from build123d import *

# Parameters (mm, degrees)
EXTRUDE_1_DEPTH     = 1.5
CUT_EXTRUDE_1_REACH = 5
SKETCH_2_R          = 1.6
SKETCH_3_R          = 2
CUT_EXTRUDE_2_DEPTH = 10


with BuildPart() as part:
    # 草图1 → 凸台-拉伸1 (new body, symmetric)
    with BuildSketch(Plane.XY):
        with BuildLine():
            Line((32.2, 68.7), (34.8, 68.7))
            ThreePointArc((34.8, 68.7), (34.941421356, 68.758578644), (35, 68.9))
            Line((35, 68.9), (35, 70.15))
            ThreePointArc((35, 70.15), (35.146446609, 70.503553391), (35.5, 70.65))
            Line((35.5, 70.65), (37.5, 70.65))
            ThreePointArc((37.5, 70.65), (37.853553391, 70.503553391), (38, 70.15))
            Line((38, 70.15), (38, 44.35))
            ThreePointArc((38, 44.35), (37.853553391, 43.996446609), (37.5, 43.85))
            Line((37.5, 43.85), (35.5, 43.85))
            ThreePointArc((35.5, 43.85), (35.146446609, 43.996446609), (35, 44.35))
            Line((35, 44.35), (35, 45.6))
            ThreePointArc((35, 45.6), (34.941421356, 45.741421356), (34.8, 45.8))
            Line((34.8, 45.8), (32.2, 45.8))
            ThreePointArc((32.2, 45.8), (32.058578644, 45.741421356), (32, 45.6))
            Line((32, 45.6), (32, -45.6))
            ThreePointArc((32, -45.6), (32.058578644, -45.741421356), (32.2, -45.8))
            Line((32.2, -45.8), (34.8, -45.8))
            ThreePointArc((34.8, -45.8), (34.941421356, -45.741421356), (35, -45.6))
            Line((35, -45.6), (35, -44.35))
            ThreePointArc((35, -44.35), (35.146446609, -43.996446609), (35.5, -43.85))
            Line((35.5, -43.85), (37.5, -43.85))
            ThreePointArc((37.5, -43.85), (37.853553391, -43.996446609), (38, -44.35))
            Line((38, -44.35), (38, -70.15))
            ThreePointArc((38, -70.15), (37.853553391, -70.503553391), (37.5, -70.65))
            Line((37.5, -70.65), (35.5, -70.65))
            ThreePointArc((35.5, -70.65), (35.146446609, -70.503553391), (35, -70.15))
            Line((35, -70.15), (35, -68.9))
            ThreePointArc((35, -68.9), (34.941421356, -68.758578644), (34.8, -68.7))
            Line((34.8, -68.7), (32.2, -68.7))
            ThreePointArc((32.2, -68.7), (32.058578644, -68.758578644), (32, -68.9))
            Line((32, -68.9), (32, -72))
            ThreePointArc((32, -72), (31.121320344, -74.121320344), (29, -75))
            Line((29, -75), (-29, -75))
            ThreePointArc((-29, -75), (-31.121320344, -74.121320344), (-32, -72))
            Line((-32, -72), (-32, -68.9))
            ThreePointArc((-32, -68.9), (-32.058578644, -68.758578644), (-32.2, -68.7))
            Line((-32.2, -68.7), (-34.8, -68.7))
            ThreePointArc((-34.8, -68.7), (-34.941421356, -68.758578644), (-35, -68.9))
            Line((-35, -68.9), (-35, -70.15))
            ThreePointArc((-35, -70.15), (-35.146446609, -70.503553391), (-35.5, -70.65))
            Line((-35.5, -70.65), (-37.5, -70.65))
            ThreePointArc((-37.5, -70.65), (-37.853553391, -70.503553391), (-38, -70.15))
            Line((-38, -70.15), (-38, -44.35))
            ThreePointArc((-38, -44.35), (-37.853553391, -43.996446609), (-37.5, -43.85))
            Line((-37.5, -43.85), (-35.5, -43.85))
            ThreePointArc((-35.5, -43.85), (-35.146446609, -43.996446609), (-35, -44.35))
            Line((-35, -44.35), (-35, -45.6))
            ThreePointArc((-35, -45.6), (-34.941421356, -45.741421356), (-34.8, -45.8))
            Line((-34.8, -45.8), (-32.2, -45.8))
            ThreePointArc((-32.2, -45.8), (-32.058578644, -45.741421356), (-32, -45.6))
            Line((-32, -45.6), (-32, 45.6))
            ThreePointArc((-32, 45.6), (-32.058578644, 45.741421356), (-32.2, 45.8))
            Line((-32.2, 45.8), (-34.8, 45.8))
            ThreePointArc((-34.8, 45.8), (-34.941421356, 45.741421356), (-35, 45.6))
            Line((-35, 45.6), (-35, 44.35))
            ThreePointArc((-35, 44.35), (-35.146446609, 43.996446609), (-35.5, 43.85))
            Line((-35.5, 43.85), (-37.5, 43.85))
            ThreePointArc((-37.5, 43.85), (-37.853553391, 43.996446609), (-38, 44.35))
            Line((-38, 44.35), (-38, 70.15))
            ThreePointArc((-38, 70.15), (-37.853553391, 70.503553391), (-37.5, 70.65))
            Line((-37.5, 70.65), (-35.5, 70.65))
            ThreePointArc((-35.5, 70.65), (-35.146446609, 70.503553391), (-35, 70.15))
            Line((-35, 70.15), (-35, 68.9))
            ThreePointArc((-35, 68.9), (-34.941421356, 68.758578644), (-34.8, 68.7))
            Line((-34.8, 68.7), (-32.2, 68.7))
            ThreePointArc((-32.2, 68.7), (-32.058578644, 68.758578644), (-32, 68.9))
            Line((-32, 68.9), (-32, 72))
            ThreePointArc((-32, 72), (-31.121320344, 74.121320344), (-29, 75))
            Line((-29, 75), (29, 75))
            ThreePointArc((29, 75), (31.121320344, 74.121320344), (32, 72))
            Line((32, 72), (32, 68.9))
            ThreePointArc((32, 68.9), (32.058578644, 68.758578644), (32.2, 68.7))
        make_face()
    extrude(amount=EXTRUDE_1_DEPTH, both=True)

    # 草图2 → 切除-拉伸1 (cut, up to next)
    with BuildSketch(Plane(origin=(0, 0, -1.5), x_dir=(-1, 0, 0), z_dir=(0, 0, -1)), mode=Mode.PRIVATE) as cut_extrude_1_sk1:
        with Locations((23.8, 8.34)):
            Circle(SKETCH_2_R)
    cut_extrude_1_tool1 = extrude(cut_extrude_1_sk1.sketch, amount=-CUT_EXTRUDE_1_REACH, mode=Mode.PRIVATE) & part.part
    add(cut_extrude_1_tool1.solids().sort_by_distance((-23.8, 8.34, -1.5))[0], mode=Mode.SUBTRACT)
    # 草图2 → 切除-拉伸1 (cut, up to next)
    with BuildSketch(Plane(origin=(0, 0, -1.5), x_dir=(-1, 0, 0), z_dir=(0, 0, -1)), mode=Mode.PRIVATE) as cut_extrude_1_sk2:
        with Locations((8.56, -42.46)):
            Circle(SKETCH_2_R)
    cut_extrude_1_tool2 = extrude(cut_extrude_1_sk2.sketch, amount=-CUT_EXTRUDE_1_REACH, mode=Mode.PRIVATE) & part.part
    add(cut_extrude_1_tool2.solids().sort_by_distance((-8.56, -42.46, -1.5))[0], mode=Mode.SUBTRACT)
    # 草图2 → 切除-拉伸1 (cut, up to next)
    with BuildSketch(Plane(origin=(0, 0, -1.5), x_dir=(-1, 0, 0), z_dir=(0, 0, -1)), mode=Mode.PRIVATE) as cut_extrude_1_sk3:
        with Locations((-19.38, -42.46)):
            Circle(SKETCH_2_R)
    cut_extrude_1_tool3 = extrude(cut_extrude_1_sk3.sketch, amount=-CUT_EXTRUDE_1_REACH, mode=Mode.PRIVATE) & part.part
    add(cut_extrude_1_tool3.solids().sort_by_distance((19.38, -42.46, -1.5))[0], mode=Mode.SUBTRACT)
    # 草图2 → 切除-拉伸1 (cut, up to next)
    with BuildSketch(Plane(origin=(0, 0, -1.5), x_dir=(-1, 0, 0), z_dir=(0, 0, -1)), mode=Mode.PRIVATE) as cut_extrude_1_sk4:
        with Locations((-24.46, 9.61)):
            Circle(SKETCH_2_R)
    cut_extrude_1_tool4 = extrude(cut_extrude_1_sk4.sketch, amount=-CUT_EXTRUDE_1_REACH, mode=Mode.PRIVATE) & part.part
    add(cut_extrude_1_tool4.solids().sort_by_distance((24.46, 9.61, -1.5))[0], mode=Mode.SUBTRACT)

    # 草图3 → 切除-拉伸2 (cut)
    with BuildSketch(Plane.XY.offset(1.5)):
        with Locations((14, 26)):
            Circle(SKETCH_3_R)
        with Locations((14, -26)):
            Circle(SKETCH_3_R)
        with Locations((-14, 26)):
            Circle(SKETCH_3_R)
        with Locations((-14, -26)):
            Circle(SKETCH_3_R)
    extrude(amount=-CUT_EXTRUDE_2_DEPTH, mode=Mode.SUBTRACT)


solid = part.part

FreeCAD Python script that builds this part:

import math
import FreeCAD as App
import Part
import Sketcher

doc = App.newDocument("Part")
params = doc.addObject("Spreadsheet::Sheet", "Params")
for row, (alias, value) in enumerate([
    ("sketch1_radius", "3 mm"),
    ("sketch1_radius2", "0.2 mm"),
    ("sketch1_radius3", "0.5 mm"),
    ("sketch1_width", "58 mm"),
    ("sketch1_width2", "2 mm"),
    ("pad1_length", "3 mm"),
    ("sketch2_diameter", "3.2 mm"),
    ("sketch3_diameter", "3.2 mm"),
    ("sketch4_diameter", "3.2 mm"),
    ("sketch5_diameter", "3.2 mm"),
    ("sketch6_diameter", "4 mm"),
    ("pocket5_length", "10 mm"),
], start=1):
    params.set(f"A{row}", alias)
    params.set(f"B{row}", "=" + value)
    params.setAlias(f"B{row}", alias)

body = doc.addObject("PartDesign::Body", "Body")

# Sketch on XY plane
sketch1 = body.newObject("Sketcher::SketchObject", "Sketch")
sketch1.AttachmentSupport = (doc.getObject("XY_Plane"), [""])
sketch1.MapMode = "FlatFace"
sketch1.addGeometry([
    Part.LineSegment(App.Vector(34.8, 68.7, 0), App.Vector(32.2, 68.7, 0)),  # 0
    Part.ArcOfCircle(Part.Circle(App.Vector(32.2, 68.9, 0), App.Vector(0, 0, 1), 0.2), math.radians(-180), math.radians(-90)),  # 1
    Part.LineSegment(App.Vector(32, 68.9, 0), App.Vector(32, 72, 0)),  # 2
    Part.ArcOfCircle(Part.Circle(App.Vector(29, 72, 0), App.Vector(0, 0, 1), 3), math.radians(0), math.radians(90)),  # 3
    Part.LineSegment(App.Vector(29, 75, 0), App.Vector(-29, 75, 0)),  # 4
    Part.ArcOfCircle(Part.Circle(App.Vector(-29, 72, 0), App.Vector(0, 0, 1), 3), math.radians(90), math.radians(180)),  # 5
    Part.LineSegment(App.Vector(-32, 72, 0), App.Vector(-32, 68.9, 0)),  # 6
    Part.ArcOfCircle(Part.Circle(App.Vector(-32.2, 68.9, 0), App.Vector(0, 0, 1), 0.2), math.radians(-90), math.radians(0)),  # 7
    Part.LineSegment(App.Vector(-32.2, 68.7, 0), App.Vector(-34.8, 68.7, 0)),  # 8
    Part.ArcOfCircle(Part.Circle(App.Vector(-34.8, 68.9, 0), App.Vector(0, 0, 1), 0.2), math.radians(-180), math.radians(-90)),  # 9
    Part.LineSegment(App.Vector(-35, 68.9, 0), App.Vector(-35, 70.15, 0)),  # 10
    Part.ArcOfCircle(Part.Circle(App.Vector(-35.5, 70.15, 0), App.Vector(0, 0, 1), 0.5), math.radians(0), math.radians(90)),  # 11
    Part.LineSegment(App.Vector(-35.5, 70.65, 0), App.Vector(-37.5, 70.65, 0)),  # 12
    Part.ArcOfCircle(Part.Circle(App.Vector(-37.5, 70.15, 0), App.Vector(0, 0, 1), 0.5), math.radians(90), math.radians(180)),  # 13
    Part.LineSegment(App.Vector(-38, 70.15, 0), App.Vector(-38, 44.35, 0)),  # 14
    Part.ArcOfCircle(Part.Circle(App.Vector(-37.5, 44.35, 0), App.Vector(0, 0, 1), 0.5), math.radians(180), math.radians(270)),  # 15
    Part.LineSegment(App.Vector(-37.5, 43.85, 0), App.Vector(-35.5, 43.85, 0)),  # 16
    Part.ArcOfCircle(Part.Circle(App.Vector(-35.5, 44.35, 0), App.Vector(0, 0, 1), 0.5), math.radians(-90), math.radians(0)),  # 17
    Part.LineSegment(App.Vector(-35, 44.35, 0), App.Vector(-35, 45.6, 0)),  # 18
    Part.ArcOfCircle(Part.Circle(App.Vector(-34.8, 45.6, 0), App.Vector(0, 0, 1), 0.2), math.radians(90), math.radians(180)),  # 19
    Part.LineSegment(App.Vector(-34.8, 45.8, 0), App.Vector(-32.2, 45.8, 0)),  # 20
    Part.ArcOfCircle(Part.Circle(App.Vector(-32.2, 45.6, 0), App.Vector(0, 0, 1), 0.2), math.radians(0), math.radians(90)),  # 21
    Part.LineSegment(App.Vector(-32, 45.6, 0), App.Vector(-32, -45.6, 0)),  # 22
    Part.ArcOfCircle(Part.Circle(App.Vector(-32.2, -45.6, 0), App.Vector(0, 0, 1), 0.2), math.radians(-90), math.radians(0)),  # 23
    Part.LineSegment(App.Vector(-32.2, -45.8, 0), App.Vector(-34.8, -45.8, 0)),  # 24
    Part.ArcOfCircle(Part.Circle(App.Vector(-34.8, -45.6, 0), App.Vector(0, 0, 1), 0.2), math.radians(-180), math.radians(-90)),  # 25
    Part.LineSegment(App.Vector(-35, -45.6, 0), App.Vector(-35, -44.35, 0)),  # 26
    Part.ArcOfCircle(Part.Circle(App.Vector(-35.5, -44.35, 0), App.Vector(0, 0, 1), 0.5), math.radians(0), math.radians(90)),  # 27
    Part.LineSegment(App.Vector(-35.5, -43.85, 0), App.Vector(-37.5, -43.85, 0)),  # 28
    Part.ArcOfCircle(Part.Circle(App.Vector(-37.5, -44.35, 0), App.Vector(0, 0, 1), 0.5), math.radians(90), math.radians(180)),  # 29
    Part.LineSegment(App.Vector(-38, -44.35, 0), App.Vector(-38, -70.15, 0)),  # 30
    Part.ArcOfCircle(Part.Circle(App.Vector(-37.5, -70.15, 0), App.Vector(0, 0, 1), 0.5), math.radians(180), math.radians(270)),  # 31
    Part.LineSegment(App.Vector(-37.5, -70.65, 0), App.Vector(-35.5, -70.65, 0)),  # 32
    Part.ArcOfCircle(Part.Circle(App.Vector(-35.5, -70.15, 0), App.Vector(0, 0, 1), 0.5), math.radians(-90), math.radians(0)),  # 33
    Part.LineSegment(App.Vector(-35, -70.15, 0), App.Vector(-35, -68.9, 0)),  # 34
    Part.ArcOfCircle(Part.Circle(App.Vector(-34.8, -68.9, 0), App.Vector(0, 0, 1), 0.2), math.radians(90), math.radians(180)),  # 35
    Part.LineSegment(App.Vector(-34.8, -68.7, 0), App.Vector(-32.2, -68.7, 0)),  # 36
    Part.ArcOfCircle(Part.Circle(App.Vector(-32.2, -68.9, 0), App.Vector(0, 0, 1), 0.2), math.radians(0), math.radians(90)),  # 37
    Part.LineSegment(App.Vector(-32, -68.9, 0), App.Vector(-32, -72, 0)),  # 38
    Part.ArcOfCircle(Part.Circle(App.Vector(-29, -72, 0), App.Vector(0, 0, 1), 3), math.radians(180), math.radians(270)),  # 39
    Part.LineSegment(App.Vector(-29, -75, 0), App.Vector(29, -75, 0)),  # 40
    Part.ArcOfCircle(Part.Circle(App.Vector(29, -72, 0), App.Vector(0, 0, 1), 3), math.radians(-90), math.radians(0)),  # 41
    Part.LineSegment(App.Vector(32, -72, 0), App.Vector(32, -68.9, 0)),  # 42
    Part.ArcOfCircle(Part.Circle(App.Vector(32.2, -68.9, 0), App.Vector(0, 0, 1), 0.2), math.radians(90), math.radians(180)),  # 43
    Part.LineSegment(App.Vector(32.2, -68.7, 0), App.Vector(34.8, -68.7, 0)),  # 44
    Part.ArcOfCircle(Part.Circle(App.Vector(34.8, -68.9, 0), App.Vector(0, 0, 1), 0.2), math.radians(0), math.radians(90)),  # 45
    Part.LineSegment(App.Vector(35, -68.9, 0), App.Vector(35, -70.15, 0)),  # 46
    Part.ArcOfCircle(Part.Circle(App.Vector(35.5, -70.15, 0), App.Vector(0, 0, 1), 0.5), math.radians(180), math.radians(270)),  # 47
    Part.LineSegment(App.Vector(35.5, -70.65, 0), App.Vector(37.5, -70.65, 0)),  # 48
    Part.ArcOfCircle(Part.Circle(App.Vector(37.5, -70.15, 0), App.Vector(0, 0, 1), 0.5), math.radians(-90), math.radians(0)),  # 49
    Part.LineSegment(App.Vector(38, -70.15, 0), App.Vector(38, -44.35, 0)),  # 50
    Part.ArcOfCircle(Part.Circle(App.Vector(37.5, -44.35, 0), App.Vector(0, 0, 1), 0.5), math.radians(0), math.radians(90)),  # 51
    Part.LineSegment(App.Vector(37.5, -43.85, 0), App.Vector(35.5, -43.85, 0)),  # 52
    Part.ArcOfCircle(Part.Circle(App.Vector(35.5, -44.35, 0), App.Vector(0, 0, 1), 0.5), math.radians(90), math.radians(180)),  # 53
    Part.LineSegment(App.Vector(35, -44.35, 0), App.Vector(35, -45.6, 0)),  # 54
    Part.ArcOfCircle(Part.Circle(App.Vector(34.8, -45.6, 0), App.Vector(0, 0, 1), 0.2), math.radians(-90), math.radians(0)),  # 55
    Part.LineSegment(App.Vector(34.8, -45.8, 0), App.Vector(32.2, -45.8, 0)),  # 56
    Part.ArcOfCircle(Part.Circle(App.Vector(32.2, -45.6, 0), App.Vector(0, 0, 1), 0.2), math.radians(-180), math.radians(-90)),  # 57
    Part.LineSegment(App.Vector(32, -45.6, 0), App.Vector(32, 45.6, 0)),  # 58
    Part.ArcOfCircle(Part.Circle(App.Vector(32.2, 45.6, 0), App.Vector(0, 0, 1), 0.2), math.radians(90), math.radians(180)),  # 59
    Part.LineSegment(App.Vector(32.2, 45.8, 0), App.Vector(34.8, 45.8, 0)),  # 60
    Part.ArcOfCircle(Part.Circle(App.Vector(34.8, 45.6, 0), App.Vector(0, 0, 1), 0.2), math.radians(0), math.radians(90)),  # 61
    Part.LineSegment(App.Vector(35, 45.6, 0), App.Vector(35, 44.35, 0)),  # 62
    Part.ArcOfCircle(Part.Circle(App.Vector(35.5, 44.35, 0), App.Vector(0, 0, 1), 0.5), math.radians(180), math.radians(270)),  # 63
    Part.LineSegment(App.Vector(35.5, 43.85, 0), App.Vector(37.5, 43.85, 0)),  # 64
    Part.ArcOfCircle(Part.Circle(App.Vector(37.5, 44.35, 0), App.Vector(0, 0, 1), 0.5), math.radians(-90), math.radians(0)),  # 65
    Part.LineSegment(App.Vector(38, 44.35, 0), App.Vector(38, 70.15, 0)),  # 66
    Part.ArcOfCircle(Part.Circle(App.Vector(37.5, 70.15, 0), App.Vector(0, 0, 1), 0.5), math.radians(0), math.radians(90)),  # 67
    Part.LineSegment(App.Vector(37.5, 70.65, 0), App.Vector(35.5, 70.65, 0)),  # 68
    Part.ArcOfCircle(Part.Circle(App.Vector(35.5, 70.15, 0), App.Vector(0, 0, 1), 0.5), math.radians(90), math.radians(180)),  # 69
    Part.LineSegment(App.Vector(35, 70.15, 0), App.Vector(35, 68.9, 0)),  # 70
    Part.ArcOfCircle(Part.Circle(App.Vector(34.8, 68.9, 0), App.Vector(0, 0, 1), 0.2), math.radians(-90), math.radians(0)),  # 71
], False)
sketch1.addConstraint([
    Sketcher.Constraint("Tangent", 0, 2, 1, 2),
    Sketcher.Constraint("Tangent", 1, 1, 2, 1),
    Sketcher.Constraint("Tangent", 2, 2, 3, 1),
    Sketcher.Constraint("Tangent", 3, 2, 4, 1),
    Sketcher.Constraint("Tangent", 4, 2, 5, 1),
    Sketcher.Constraint("Tangent", 5, 2, 6, 1),
    Sketcher.Constraint("Tangent", 6, 2, 7, 2),
    Sketcher.Constraint("Tangent", 7, 1, 8, 1),
    Sketcher.Constraint("Tangent", 8, 2, 9, 2),
    Sketcher.Constraint("Tangent", 9, 1, 10, 1),
    Sketcher.Constraint("Tangent", 10, 2, 11, 1),
    Sketcher.Constraint("Tangent", 11, 2, 12, 1),
    Sketcher.Constraint("Tangent", 12, 2, 13, 1),
    Sketcher.Constraint("Tangent", 13, 2, 14, 1),
    Sketcher.Constraint("Tangent", 14, 2, 15, 1),
    Sketcher.Constraint("Tangent", 15, 2, 16, 1),
    Sketcher.Constraint("Tangent", 16, 2, 17, 1),
    Sketcher.Constraint("Tangent", 17, 2, 18, 1),
    Sketcher.Constraint("Tangent", 18, 2, 19, 2),
    Sketcher.Constraint("Tangent", 19, 1, 20, 1),
    Sketcher.Constraint("Tangent", 20, 2, 21, 2),
    Sketcher.Constraint("Tangent", 21, 1, 22, 1),
    Sketcher.Constraint("Tangent", 22, 2, 23, 2),
    Sketcher.Constraint("Tangent", 23, 1, 24, 1),
    Sketcher.Constraint("Tangent", 24, 2, 25, 2),
    Sketcher.Constraint("Tangent", 25, 1, 26, 1),
    Sketcher.Constraint("Tangent", 26, 2, 27, 1),
    Sketcher.Constraint("Tangent", 27, 2, 28, 1),
    Sketcher.Constraint("Tangent", 28, 2, 29, 1),
    Sketcher.Constraint("Tangent", 29, 2, 30, 1),
    Sketcher.Constraint("Tangent", 30, 2, 31, 1),
    Sketcher.Constraint("Tangent", 31, 2, 32, 1),
    Sketcher.Constraint("Tangent", 32, 2, 33, 1),
    Sketcher.Constraint("Tangent", 33, 2, 34, 1),
    Sketcher.Constraint("Tangent", 34, 2, 35, 2),
    Sketcher.Constraint("Tangent", 35, 1, 36, 1),
    Sketcher.Constraint("Tangent", 36, 2, 37, 2),
    Sketcher.Constraint("Tangent", 37, 1, 38, 1),
    Sketcher.Constraint("Tangent", 38, 2, 39, 1),
    Sketcher.Constraint("Tangent", 39, 2, 40, 1),
    Sketcher.Constraint("Tangent", 40, 2, 41, 1),
    Sketcher.Constraint("Tangent", 41, 2, 42, 1),
    Sketcher.Constraint("Tangent", 42, 2, 43, 2),
    Sketcher.Constraint("Tangent", 43, 1, 44, 1),
    Sketcher.Constraint("Tangent", 44, 2, 45, 2),
    Sketcher.Constraint("Tangent", 45, 1, 46, 1),
    Sketcher.Constraint("Tangent", 46, 2, 47, 1),
    Sketcher.Constraint("Tangent", 47, 2, 48, 1),
    Sketcher.Constraint("Tangent", 48, 2, 49, 1),
    Sketcher.Constraint("Tangent", 49, 2, 50, 1),
    Sketcher.Constraint("Tangent", 50, 2, 51, 1),
    Sketcher.Constraint("Tangent", 51, 2, 52, 1),
    Sketcher.Constraint("Tangent", 52, 2, 53, 1),
    Sketcher.Constraint("Tangent", 53, 2, 54, 1),
    Sketcher.Constraint("Tangent", 54, 2, 55, 2),
    Sketcher.Constraint("Tangent", 55, 1, 56, 1),
    Sketcher.Constraint("Tangent", 56, 2, 57, 2),
    Sketcher.Constraint("Tangent", 57, 1, 58, 1),
    Sketcher.Constraint("Tangent", 58, 2, 59, 2),
    Sketcher.Constraint("Tangent", 59, 1, 60, 1),
    Sketcher.Constraint("Tangent", 60, 2, 61, 2),
    Sketcher.Constraint("Tangent", 61, 1, 62, 1),
    Sketcher.Constraint("Tangent", 62, 2, 63, 1),
    Sketcher.Constraint("Tangent", 63, 2, 64, 1),
    Sketcher.Constraint("Tangent", 64, 2, 65, 1),
    Sketcher.Constraint("Tangent", 65, 2, 66, 1),
    Sketcher.Constraint("Tangent", 66, 2, 67, 1),
    Sketcher.Constraint("Tangent", 67, 2, 68, 1),
    Sketcher.Constraint("Tangent", 68, 2, 69, 1),
    Sketcher.Constraint("Tangent", 69, 2, 70, 1),
    Sketcher.Constraint("Tangent", 70, 2, 71, 2),
    Sketcher.Constraint("Tangent", 71, 1, 0, 1),
    Sketcher.Constraint("Horizontal", 0),
    Sketcher.Constraint("Vertical", 2),
    Sketcher.Constraint("Horizontal", 4),
    Sketcher.Constraint("Vertical", 6),
    Sketcher.Constraint("Horizontal", 8),
    Sketcher.Constraint("Vertical", 10),
    Sketcher.Constraint("Horizontal", 12),
    Sketcher.Constraint("Vertical", 14),
    Sketcher.Constraint("Horizontal", 16),
    Sketcher.Constraint("Vertical", 18),
    Sketcher.Constraint("Horizontal", 20),
    Sketcher.Constraint("Vertical", 22),
    Sketcher.Constraint("Horizontal", 24),
    Sketcher.Constraint("Vertical", 26),
    Sketcher.Constraint("Horizontal", 28),
    Sketcher.Constraint("Vertical", 30),
    Sketcher.Constraint("Horizontal", 32),
    Sketcher.Constraint("Vertical", 34),
    Sketcher.Constraint("Horizontal", 36),
    Sketcher.Constraint("Vertical", 38),
    Sketcher.Constraint("Horizontal", 40),
    Sketcher.Constraint("Vertical", 42),
    Sketcher.Constraint("Horizontal", 44),
    Sketcher.Constraint("Vertical", 46),
    Sketcher.Constraint("Horizontal", 48),
    Sketcher.Constraint("Vertical", 50),
    Sketcher.Constraint("Horizontal", 52),
    Sketcher.Constraint("Vertical", 54),
    Sketcher.Constraint("Horizontal", 56),
    Sketcher.Constraint("Vertical", 58),
    Sketcher.Constraint("Horizontal", 60),
    Sketcher.Constraint("Vertical", 62),
    Sketcher.Constraint("Horizontal", 64),
    Sketcher.Constraint("Vertical", 66),
    Sketcher.Constraint("Horizontal", 68),
    Sketcher.Constraint("Vertical", 70),
    Sketcher.Constraint("Equal", 3, 5),
    Sketcher.Constraint("Equal", 1, 7),
    Sketcher.Constraint("Equal", 7, 9),
    Sketcher.Constraint("Equal", 11, 13),
    Sketcher.Constraint("Equal", 13, 15),
    Sketcher.Constraint("Equal", 15, 17),
    Sketcher.Constraint("Equal", 9, 19),
    Sketcher.Constraint("Equal", 19, 21),
    Sketcher.Constraint("Equal", 21, 23),
    Sketcher.Constraint("Equal", 23, 25),
    Sketcher.Constraint("Equal", 17, 27),
    Sketcher.Constraint("Equal", 27, 29),
    Sketcher.Constraint("Equal", 29, 31),
    Sketcher.Constraint("Equal", 31, 33),
    Sketcher.Constraint("Equal", 25, 35),
    Sketcher.Constraint("Equal", 35, 37),
    Sketcher.Constraint("Equal", 5, 39),
    Sketcher.Constraint("Equal", 39, 41),
    Sketcher.Constraint("Equal", 37, 43),
    Sketcher.Constraint("Equal", 43, 45),
    Sketcher.Constraint("Equal", 33, 47),
    Sketcher.Constraint("Equal", 47, 49),
    Sketcher.Constraint("Equal", 49, 51),
    Sketcher.Constraint("Equal", 51, 53),
    Sketcher.Constraint("Equal", 45, 55),
    Sketcher.Constraint("Equal", 55, 57),
    Sketcher.Constraint("Equal", 57, 59),
    Sketcher.Constraint("Equal", 59, 61),
    Sketcher.Constraint("Equal", 53, 63),
    Sketcher.Constraint("Equal", 63, 65),
    Sketcher.Constraint("Equal", 65, 67),
    Sketcher.Constraint("Equal", 67, 69),
    Sketcher.Constraint("Equal", 61, 71),
    Sketcher.Constraint("Symmetric", 1, 3, 37, 3, -1, 1),
    Sketcher.Constraint("Symmetric", 5, 3, 41, 3, -1, 1),
    Sketcher.Constraint("Symmetric", 9, 3, 45, 3, -1, 1),
    Sketcher.Constraint("Symmetric", 13, 3, 49, 3, -1, 1),
    Sketcher.Constraint("Symmetric", 17, 3, 53, 3, -1, 1),
    Sketcher.Constraint("Symmetric", 21, 3, 57, 3, -1, 1),
    Sketcher.Constraint("Symmetric", 25, 3, 61, 3, -1, 1),
    Sketcher.Constraint("Symmetric", 29, 3, 65, 3, -1, 1),
    Sketcher.Constraint("Symmetric", 33, 3, 69, 3, -1, 1),
    Sketcher.Constraint("Symmetric", 1, 3, 7, 3, -2),
    Sketcher.Constraint("Symmetric", 33, 3, 47, 3, -2),
    Sketcher.Constraint("Symmetric", 29, 3, 51, 3, -2),
    Sketcher.Constraint("Symmetric", 25, 3, 55, 3, -2),
    Sketcher.Constraint("Vertical", 11, 3, 17, 3),
    Sketcher.Constraint("Vertical", 7, 3, 21, 3),
    Sketcher.Constraint("Equal", 10, 18),
    Sketcher.Constraint("Radius", 3, 3.0),
    Sketcher.Constraint("Radius", 1, 0.2),
    Sketcher.Constraint("Radius", 11, 0.5),
    Sketcher.Constraint("DistanceX", 4, 2, 4, 1, 58.0),
    Sketcher.Constraint("DistanceX", 12, 2, 12, 1, 2.0),
    Sketcher.Constraint("DistanceX", 0, 2, 0, 1, 2.6),
    Sketcher.Constraint("DistanceY", 2, 1, 2, 2, 3.1),
    Sketcher.Constraint("DistanceY", 14, 2, 14, 1, 25.8),
    Sketcher.Constraint("DistanceY", 22, 2, 22, 1, 91.2),
    Sketcher.Constraint("DistanceY", -1, 1, 3, 3, 72.0),
])
sketch1.setExpression("Constraints[157]", "Params.sketch1_radius")
sketch1.setExpression("Constraints[158]", "Params.sketch1_radius2")
sketch1.setExpression("Constraints[159]", "Params.sketch1_radius3")
sketch1.setExpression("Constraints[160]", "Params.sketch1_width")
sketch1.setExpression("Constraints[161]", "Params.sketch1_width2")
pad1 = body.newObject("PartDesign::Pad", "Pad")
pad1.Profile = sketch1
pad1.setExpression("Length", "Params.pad1_length")
pad1.Midplane = True

# Sketch on XY plane
sketch2 = body.newObject("Sketcher::SketchObject", "Sketch001")
sketch2.AttachmentSupport = (doc.getObject("XY_Plane"), [""])
sketch2.MapMode = "FlatFace"
sketch2.AttachmentOffset = App.Placement(App.Vector(0, 0, -1.5), App.Rotation())
sketch2.addGeometry(Part.Circle(App.Vector(-23.8, 8.3, 0), App.Vector(0, 0, 1), 1.6), False)
sketch2.addConstraint([
    Sketcher.Constraint("Diameter", 0, 3.2),
    Sketcher.Constraint("DistanceX", 0, 3, -1, 1, 23.8),
    Sketcher.Constraint("DistanceY", -1, 1, 0, 3, 8.34),
])
sketch2.setExpression("Constraints[0]", "Params.sketch2_diameter")
pocket1 = body.newObject("PartDesign::Pocket", "Pocket")
pocket1.Profile = sketch2
pocket1.Type = "UpToFirst"
pocket1.Reversed = True

# Sketch on XY plane
sketch3 = body.newObject("Sketcher::SketchObject", "Sketch002")
sketch3.AttachmentSupport = (doc.getObject("XY_Plane"), [""])
sketch3.MapMode = "FlatFace"
sketch3.AttachmentOffset = App.Placement(App.Vector(0, 0, -1.5), App.Rotation())
sketch3.addGeometry(Part.Circle(App.Vector(-8.6, -42.5, 0), App.Vector(0, 0, 1), 1.6), False)
sketch3.addConstraint([
    Sketcher.Constraint("Diameter", 0, 3.2),
    Sketcher.Constraint("DistanceX", 0, 3, -1, 1, 8.56),
    Sketcher.Constraint("DistanceY", 0, 3, -1, 1, 42.46),
])
sketch3.setExpression("Constraints[0]", "Params.sketch3_diameter")
pocket2 = body.newObject("PartDesign::Pocket", "Pocket001")
pocket2.Profile = sketch3
pocket2.Type = "UpToFirst"
pocket2.Reversed = True

# Sketch on XY plane
sketch4 = body.newObject("Sketcher::SketchObject", "Sketch003")
sketch4.AttachmentSupport = (doc.getObject("XY_Plane"), [""])
sketch4.MapMode = "FlatFace"
sketch4.AttachmentOffset = App.Placement(App.Vector(0, 0, -1.5), App.Rotation())
sketch4.addGeometry(Part.Circle(App.Vector(19.4, -42.5, 0), App.Vector(0, 0, 1), 1.6), False)
sketch4.addConstraint([
    Sketcher.Constraint("Diameter", 0, 3.2),
    Sketcher.Constraint("DistanceX", -1, 1, 0, 3, 19.38),
    Sketcher.Constraint("DistanceY", 0, 3, -1, 1, 42.46),
])
sketch4.setExpression("Constraints[0]", "Params.sketch4_diameter")
pocket3 = body.newObject("PartDesign::Pocket", "Pocket002")
pocket3.Profile = sketch4
pocket3.Type = "UpToFirst"
pocket3.Reversed = True

# Sketch on XY plane
sketch5 = body.newObject("Sketcher::SketchObject", "Sketch004")
sketch5.AttachmentSupport = (doc.getObject("XY_Plane"), [""])
sketch5.MapMode = "FlatFace"
sketch5.AttachmentOffset = App.Placement(App.Vector(0, 0, -1.5), App.Rotation())
sketch5.addGeometry(Part.Circle(App.Vector(24.5, 9.6, 0), App.Vector(0, 0, 1), 1.6), False)
sketch5.addConstraint([
    Sketcher.Constraint("Diameter", 0, 3.2),
    Sketcher.Constraint("DistanceX", -1, 1, 0, 3, 24.46),
    Sketcher.Constraint("DistanceY", -1, 1, 0, 3, 9.61),
])
sketch5.setExpression("Constraints[0]", "Params.sketch5_diameter")
pocket4 = body.newObject("PartDesign::Pocket", "Pocket003")
pocket4.Profile = sketch5
pocket4.Type = "UpToFirst"
pocket4.Reversed = True

# Sketch on XY plane
sketch6 = body.newObject("Sketcher::SketchObject", "Sketch005")
sketch6.AttachmentSupport = (doc.getObject("XY_Plane"), [""])
sketch6.MapMode = "FlatFace"
sketch6.AttachmentOffset = App.Placement(App.Vector(0, 0, 1.5), App.Rotation())
sketch6.addGeometry([
    Part.Circle(App.Vector(14, 26, 0), App.Vector(0, 0, 1), 2),
    Part.Circle(App.Vector(14, -26, 0), App.Vector(0, 0, 1), 2),
    Part.Circle(App.Vector(-14, 26, 0), App.Vector(0, 0, 1), 2),
    Part.Circle(App.Vector(-14, -26, 0), App.Vector(0, 0, 1), 2),
], False)
sketch6.addConstraint([
    Sketcher.Constraint("Equal", 0, 1),
    Sketcher.Constraint("Equal", 1, 2),
    Sketcher.Constraint("Equal", 2, 3),
    Sketcher.Constraint("Symmetric", 1, 3, 2, 3, -1, 1),
    Sketcher.Constraint("Symmetric", 0, 3, 3, 3, -1, 1),
    Sketcher.Constraint("Symmetric", 0, 3, 2, 3, -2),
    Sketcher.Constraint("Diameter", 0, 4.0),
    Sketcher.Constraint("DistanceX", -1, 1, 0, 3, 14.0),
    Sketcher.Constraint("DistanceY", -1, 1, 0, 3, 26.0),
])
sketch6.setExpression("Constraints[6]", "Params.sketch6_diameter")
pocket5 = body.newObject("PartDesign::Pocket", "Pocket004")
pocket5.Profile = sketch6
pocket5.setExpression("Length", "Params.pocket5_length")

doc.recompute()
